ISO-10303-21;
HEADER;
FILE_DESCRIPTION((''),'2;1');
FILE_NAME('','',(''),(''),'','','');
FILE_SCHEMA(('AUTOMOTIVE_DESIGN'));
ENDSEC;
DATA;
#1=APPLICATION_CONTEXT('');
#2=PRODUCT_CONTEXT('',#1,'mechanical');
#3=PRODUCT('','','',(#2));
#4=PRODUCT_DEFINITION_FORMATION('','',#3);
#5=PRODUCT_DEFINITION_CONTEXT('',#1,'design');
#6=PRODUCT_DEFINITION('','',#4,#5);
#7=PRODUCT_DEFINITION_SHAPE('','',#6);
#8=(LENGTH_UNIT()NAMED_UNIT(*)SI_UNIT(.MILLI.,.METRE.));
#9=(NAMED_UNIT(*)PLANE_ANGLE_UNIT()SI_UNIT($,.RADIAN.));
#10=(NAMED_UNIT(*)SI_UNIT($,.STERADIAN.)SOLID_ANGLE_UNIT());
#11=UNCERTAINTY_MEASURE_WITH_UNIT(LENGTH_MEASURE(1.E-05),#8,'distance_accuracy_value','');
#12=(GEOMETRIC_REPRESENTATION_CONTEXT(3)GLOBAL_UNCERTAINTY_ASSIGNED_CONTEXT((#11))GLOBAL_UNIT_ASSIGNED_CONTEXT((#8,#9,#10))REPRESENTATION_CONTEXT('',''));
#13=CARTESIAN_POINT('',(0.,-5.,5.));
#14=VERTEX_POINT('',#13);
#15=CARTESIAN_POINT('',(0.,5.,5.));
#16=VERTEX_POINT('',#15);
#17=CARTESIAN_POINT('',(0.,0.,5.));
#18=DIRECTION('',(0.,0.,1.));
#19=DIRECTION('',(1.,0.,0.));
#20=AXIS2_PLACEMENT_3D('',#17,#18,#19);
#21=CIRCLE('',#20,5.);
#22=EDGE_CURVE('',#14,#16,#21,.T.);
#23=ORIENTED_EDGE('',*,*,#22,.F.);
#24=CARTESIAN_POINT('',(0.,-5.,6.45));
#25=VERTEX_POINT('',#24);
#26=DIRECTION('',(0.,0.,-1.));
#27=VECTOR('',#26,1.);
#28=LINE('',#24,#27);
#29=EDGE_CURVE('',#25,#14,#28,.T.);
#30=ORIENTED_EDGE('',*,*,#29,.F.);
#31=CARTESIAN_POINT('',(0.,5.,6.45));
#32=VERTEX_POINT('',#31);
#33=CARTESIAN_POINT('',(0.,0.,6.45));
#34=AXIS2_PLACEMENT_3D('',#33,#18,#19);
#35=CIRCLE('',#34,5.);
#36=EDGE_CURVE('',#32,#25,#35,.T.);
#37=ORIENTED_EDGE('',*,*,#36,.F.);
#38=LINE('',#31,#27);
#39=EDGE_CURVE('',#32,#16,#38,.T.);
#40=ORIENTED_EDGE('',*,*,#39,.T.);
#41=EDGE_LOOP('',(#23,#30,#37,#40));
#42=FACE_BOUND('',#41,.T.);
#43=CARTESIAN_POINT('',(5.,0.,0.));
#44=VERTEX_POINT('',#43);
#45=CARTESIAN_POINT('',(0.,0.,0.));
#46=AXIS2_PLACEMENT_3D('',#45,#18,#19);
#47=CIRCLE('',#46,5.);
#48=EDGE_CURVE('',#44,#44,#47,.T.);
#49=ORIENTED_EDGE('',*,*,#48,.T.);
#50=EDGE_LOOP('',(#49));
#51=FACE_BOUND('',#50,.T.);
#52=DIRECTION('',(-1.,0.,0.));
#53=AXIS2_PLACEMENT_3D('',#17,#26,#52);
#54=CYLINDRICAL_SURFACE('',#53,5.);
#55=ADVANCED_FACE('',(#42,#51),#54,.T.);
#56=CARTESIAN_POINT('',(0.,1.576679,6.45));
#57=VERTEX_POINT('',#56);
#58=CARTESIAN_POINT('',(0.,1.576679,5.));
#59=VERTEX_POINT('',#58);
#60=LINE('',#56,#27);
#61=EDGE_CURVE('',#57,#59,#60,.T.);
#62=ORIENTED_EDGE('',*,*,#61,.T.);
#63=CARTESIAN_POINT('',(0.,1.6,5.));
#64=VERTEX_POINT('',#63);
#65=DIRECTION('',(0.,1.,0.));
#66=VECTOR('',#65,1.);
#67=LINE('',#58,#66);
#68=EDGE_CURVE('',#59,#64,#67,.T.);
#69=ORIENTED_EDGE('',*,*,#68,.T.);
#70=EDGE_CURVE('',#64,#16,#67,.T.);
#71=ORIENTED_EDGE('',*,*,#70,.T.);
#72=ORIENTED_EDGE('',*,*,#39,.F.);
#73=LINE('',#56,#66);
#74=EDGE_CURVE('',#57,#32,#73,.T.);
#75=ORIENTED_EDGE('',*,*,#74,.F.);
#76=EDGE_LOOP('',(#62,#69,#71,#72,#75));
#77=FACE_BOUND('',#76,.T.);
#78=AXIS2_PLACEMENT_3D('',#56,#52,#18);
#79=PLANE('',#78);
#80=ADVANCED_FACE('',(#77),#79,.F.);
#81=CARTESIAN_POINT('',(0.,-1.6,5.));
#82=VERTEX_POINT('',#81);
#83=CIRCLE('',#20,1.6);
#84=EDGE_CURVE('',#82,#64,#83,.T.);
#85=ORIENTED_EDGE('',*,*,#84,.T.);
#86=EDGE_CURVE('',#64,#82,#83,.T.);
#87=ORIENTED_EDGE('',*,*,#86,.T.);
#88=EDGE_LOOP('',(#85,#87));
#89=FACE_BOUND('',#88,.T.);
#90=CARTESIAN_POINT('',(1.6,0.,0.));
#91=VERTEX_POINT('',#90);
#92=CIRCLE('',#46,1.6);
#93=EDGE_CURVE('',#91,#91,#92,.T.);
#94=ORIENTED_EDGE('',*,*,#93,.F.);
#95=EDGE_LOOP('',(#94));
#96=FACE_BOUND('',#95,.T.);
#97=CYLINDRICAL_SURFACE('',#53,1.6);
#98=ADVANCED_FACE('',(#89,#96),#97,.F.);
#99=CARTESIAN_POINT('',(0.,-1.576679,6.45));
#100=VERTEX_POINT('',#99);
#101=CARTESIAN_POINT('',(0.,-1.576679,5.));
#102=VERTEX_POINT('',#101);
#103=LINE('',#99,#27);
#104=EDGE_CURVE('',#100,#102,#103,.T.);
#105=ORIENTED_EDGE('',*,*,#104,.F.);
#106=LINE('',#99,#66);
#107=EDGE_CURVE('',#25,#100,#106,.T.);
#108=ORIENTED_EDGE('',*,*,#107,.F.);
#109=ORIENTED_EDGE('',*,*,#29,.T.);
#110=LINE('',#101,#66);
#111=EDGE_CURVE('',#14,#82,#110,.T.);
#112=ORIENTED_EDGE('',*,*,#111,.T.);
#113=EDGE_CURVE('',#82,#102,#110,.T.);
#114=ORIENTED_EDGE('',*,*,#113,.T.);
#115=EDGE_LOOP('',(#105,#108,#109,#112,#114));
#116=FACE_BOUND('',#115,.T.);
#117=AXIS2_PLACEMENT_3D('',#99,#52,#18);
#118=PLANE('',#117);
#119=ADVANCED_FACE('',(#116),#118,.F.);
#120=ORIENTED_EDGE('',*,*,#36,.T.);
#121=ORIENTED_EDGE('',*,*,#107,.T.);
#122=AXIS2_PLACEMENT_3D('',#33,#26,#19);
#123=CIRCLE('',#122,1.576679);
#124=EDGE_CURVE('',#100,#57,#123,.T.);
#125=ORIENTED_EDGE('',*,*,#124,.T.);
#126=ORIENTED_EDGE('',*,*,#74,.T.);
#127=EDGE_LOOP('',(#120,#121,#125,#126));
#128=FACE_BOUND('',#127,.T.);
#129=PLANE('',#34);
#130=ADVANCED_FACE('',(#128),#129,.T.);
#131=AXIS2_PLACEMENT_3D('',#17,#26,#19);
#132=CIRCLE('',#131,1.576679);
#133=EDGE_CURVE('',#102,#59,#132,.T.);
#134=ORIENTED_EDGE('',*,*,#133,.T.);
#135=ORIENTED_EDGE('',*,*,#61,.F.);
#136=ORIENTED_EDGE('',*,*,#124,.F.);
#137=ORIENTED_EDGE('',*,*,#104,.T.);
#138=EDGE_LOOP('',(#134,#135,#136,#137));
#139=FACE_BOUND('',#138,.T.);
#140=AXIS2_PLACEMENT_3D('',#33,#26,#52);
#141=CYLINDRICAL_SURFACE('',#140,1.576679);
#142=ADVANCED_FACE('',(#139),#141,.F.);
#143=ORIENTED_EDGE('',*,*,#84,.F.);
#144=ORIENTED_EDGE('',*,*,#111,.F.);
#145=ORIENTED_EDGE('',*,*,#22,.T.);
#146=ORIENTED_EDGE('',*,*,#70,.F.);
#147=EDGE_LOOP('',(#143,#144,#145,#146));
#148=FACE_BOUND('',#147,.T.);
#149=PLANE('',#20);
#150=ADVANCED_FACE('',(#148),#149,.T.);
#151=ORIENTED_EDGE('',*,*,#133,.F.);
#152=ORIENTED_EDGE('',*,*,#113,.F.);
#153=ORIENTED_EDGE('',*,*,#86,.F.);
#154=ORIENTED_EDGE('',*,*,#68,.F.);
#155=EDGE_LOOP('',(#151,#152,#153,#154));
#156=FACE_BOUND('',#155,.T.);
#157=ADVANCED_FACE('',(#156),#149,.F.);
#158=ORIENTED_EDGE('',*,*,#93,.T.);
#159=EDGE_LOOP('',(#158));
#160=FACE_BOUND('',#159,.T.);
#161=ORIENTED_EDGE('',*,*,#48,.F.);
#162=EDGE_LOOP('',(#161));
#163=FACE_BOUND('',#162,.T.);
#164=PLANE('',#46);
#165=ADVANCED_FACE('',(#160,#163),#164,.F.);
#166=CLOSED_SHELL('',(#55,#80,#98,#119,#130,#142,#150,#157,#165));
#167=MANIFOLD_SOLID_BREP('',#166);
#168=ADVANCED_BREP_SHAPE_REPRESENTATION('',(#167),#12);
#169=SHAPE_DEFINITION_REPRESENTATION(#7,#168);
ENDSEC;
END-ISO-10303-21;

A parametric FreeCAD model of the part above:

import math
import FreeCAD as App
import Part
import Sketcher
Q = App.Units.Quantity

doc = App.newDocument("Part")
body = doc.addObject("PartDesign::Body", "Body")

sketch1 = doc.addObject("Sketcher::SketchObject", "Sketch")
body.addObject(sketch1)
sketch1.AttachmentSupport = (doc.XY_Plane, [""])
sketch1.MapMode = "FlatFace"
sketch1.addGeometry([
    Part.Circle(App.Vector(0, 0, 0), App.Vector(0, 0, 1), 5),
    Part.Circle(App.Vector(0, 0, 0), App.Vector(0, 0, 1), 1.6),
], False)
sketch1.addConstraint([
    Sketcher.Constraint("Coincident", 0, 3, -1, 1),
    Sketcher.Constraint("Coincident", 1, 3, -1, 1),
    Sketcher.Constraint("Diameter", 0, Q("10 mm")),
    Sketcher.Constraint("Diameter", 1, Q("3.2 mm")),
])
pad1 = doc.addObject("PartDesign::Pad", "Pad")
body.addObject(pad1)
pad1.Profile = sketch1
pad1.Length = 5

sketch2 = doc.addObject("Sketcher::SketchObject", "Sketch001")
body.addObject(sketch2)
sketch2.AttachmentSupport = (doc.XY_Plane, [""])
sketch2.MapMode = "FlatFace"
sketch2.AttachmentOffset = App.Placement(App.Vector(0, 0, 5), App.Rotation())
sketch2.addGeometry([
    Part.LineSegment(App.Vector(0, 1.6, 0), App.Vector(0, 5, 0)),
    Part.ArcOfCircle(Part.Circle(App.Vector(0, 0, 0), App.Vector(0, 0, 1), 5), math.radians(90), math.radians(270)),
    Part.LineSegment(App.Vector(0, -5, 0), App.Vector(0, -1.6, 0)),
    Part.ArcOfCircle(Part.Circle(App.Vector(0, 0, 0), App.Vector(0, 0, 1), 1.6), math.radians(90), math.radians(270)),
], False)
sketch2.addConstraint([
    Sketcher.Constraint("Coincident", 0, 2, 1, 1),
    Sketcher.Constraint("Coincident", 1, 2, 2, 1),
    Sketcher.Constraint("Coincident", 2, 2, 3, 2),
    Sketcher.Constraint("Coincident", 3, 1, 0, 1),
    Sketcher.Constraint("Vertical", 0),
    Sketcher.Constraint("Vertical", 2),
    Sketcher.Constraint("Coincident", 1, 3, -1, 1),
    Sketcher.Constraint("Coincident", 3, 3, -1, 1),
    Sketcher.Constraint("PointOnObject", 0, 2, -2),
    Sketcher.Constraint("PointOnObject", 1, 2, -2),
    Sketcher.Constraint("Radius", 1, Q("5 mm")),
    Sketcher.Constraint("Radius", 3, Q("1.576679 mm")),
])
pad2 = doc.addObject("PartDesign::Pad", "Pad001")
body.addObject(pad2)
pad2.Profile = sketch2
pad2.Length = 1.45

doc.recompute()
